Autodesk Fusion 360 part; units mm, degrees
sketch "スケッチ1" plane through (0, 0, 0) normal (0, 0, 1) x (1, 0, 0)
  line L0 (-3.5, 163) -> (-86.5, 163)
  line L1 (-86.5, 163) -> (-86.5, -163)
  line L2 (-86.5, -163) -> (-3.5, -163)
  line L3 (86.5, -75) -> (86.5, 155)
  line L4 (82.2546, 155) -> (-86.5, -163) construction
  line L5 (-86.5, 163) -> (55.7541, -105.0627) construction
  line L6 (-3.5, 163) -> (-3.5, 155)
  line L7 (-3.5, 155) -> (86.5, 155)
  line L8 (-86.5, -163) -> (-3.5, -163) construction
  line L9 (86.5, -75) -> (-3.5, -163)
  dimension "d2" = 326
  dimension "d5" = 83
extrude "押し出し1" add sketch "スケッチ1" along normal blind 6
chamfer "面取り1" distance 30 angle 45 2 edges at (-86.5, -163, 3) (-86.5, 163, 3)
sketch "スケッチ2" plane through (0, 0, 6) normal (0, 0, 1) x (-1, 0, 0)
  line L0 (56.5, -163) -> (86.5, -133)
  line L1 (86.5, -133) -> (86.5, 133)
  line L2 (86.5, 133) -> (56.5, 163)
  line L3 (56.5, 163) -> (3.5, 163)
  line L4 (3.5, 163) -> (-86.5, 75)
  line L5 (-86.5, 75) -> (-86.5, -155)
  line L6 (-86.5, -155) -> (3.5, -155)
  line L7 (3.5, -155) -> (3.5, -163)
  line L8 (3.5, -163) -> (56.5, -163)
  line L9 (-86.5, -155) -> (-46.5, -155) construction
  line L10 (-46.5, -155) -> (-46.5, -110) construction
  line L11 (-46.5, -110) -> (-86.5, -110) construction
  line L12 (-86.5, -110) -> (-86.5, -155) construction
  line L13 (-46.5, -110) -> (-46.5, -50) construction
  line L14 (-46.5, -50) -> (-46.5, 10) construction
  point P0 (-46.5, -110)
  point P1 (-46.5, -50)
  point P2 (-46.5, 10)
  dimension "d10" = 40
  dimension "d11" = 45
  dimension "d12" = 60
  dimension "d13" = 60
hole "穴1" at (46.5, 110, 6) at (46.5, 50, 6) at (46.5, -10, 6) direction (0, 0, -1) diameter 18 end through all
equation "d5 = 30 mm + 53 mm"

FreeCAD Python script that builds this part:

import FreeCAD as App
import Part
import Sketcher
from FreeCAD import Vector


def edges_at(feature, points):
    """Names of the edges that pass closest to the given points."""
    edges = feature.Shape.Edges
    near = lambda p: min(range(len(edges)), key=lambda i: edges[i].distToShape(Part.Vertex(*p))[0])
    return sorted({f"Edge{near(p) + 1}" for p in points})

doc = App.newDocument("Part")
params = doc.addObject("Spreadsheet::Sheet", "Params")
for row, (alias, value) in enumerate([
    ("sketch1_width", "83 mm"),
    ("sketch1_height", "326 mm"),
    ("sketch1_width2", "90 mm"),
    ("sketch1_height2", "8 mm"),
    ("sketch1_height3", "230 mm"),
    ("pad1_length", "6 mm"),
    ("chamfer_size", "30 mm"),
    ("sketch2_diameter", "18 mm"),
    ("hole_diameter", "18 mm"),
], start=1):
    params.set(f"A{row}", alias)
    params.set(f"B{row}", "=" + value)
    params.setAlias(f"B{row}", alias)

body = doc.addObject("PartDesign::Body", "Body")

# Sketch on XY plane
sketch1 = doc.addObject("Sketcher::SketchObject", "Sketch")
body.addObject(sketch1)
sketch1.AttachmentSupport = (doc.XY_Plane, [""])
sketch1.MapMode = "FlatFace"
sketch1.addGeometry(Part.LineSegment(Vector(-4, 155, 0), Vector(-4, 163, 0)), False)
sketch1.addGeometry(Part.LineSegment(Vector(-4, 163, 0), Vector(-86, 163, 0)), False)
sketch1.addGeometry(Part.LineSegment(Vector(-86, 163, 0), Vector(-86, -163, 0)), False)
sketch1.addGeometry(Part.LineSegment(Vector(-86, -163, 0), Vector(-4, -163, 0)), False)
sketch1.addGeometry(Part.LineSegment(Vector(-4, -163, 0), Vector(86, -75, 0)), False)
sketch1.addGeometry(Part.LineSegment(Vector(86, -75, 0), Vector(86, 155, 0)), False)
sketch1.addGeometry(Part.LineSegment(Vector(86, 155, 0), Vector(-4, 155, 0)), False)
sketch1.addConstraint(Sketcher.Constraint("Coincident", 0, 2, 1, 1))
sketch1.addConstraint(Sketcher.Constraint("Coincident", 1, 2, 2, 1))
sketch1.addConstraint(Sketcher.Constraint("Coincident", 2, 2, 3, 1))
sketch1.addConstraint(Sketcher.Constraint("Coincident", 3, 2, 4, 1))
sketch1.addConstraint(Sketcher.Constraint("Coincident", 4, 2, 5, 1))
sketch1.addConstraint(Sketcher.Constraint("Coincident", 5, 2, 6, 1))
sketch1.addConstraint(Sketcher.Constraint("Coincident", 6, 2, 0, 1))
sketch1.addConstraint(Sketcher.Constraint("Vertical", 0))
sketch1.addConstraint(Sketcher.Constraint("Horizontal", 1))
sketch1.addConstraint(Sketcher.Constraint("Vertical", 2))
sketch1.addConstraint(Sketcher.Constraint("Horizontal", 3))
sketch1.addConstraint(Sketcher.Constraint("Vertical", 5))
sketch1.addConstraint(Sketcher.Constraint("Horizontal", 6))
sketch1.addConstraint(Sketcher.Constraint("Symmetric", 0, 2, 3, 2, -1))
sketch1.addConstraint(Sketcher.Constraint("DistanceX", 1, 2, 1, 1, 83.0))
sketch1.addConstraint(Sketcher.Constraint("DistanceY", 2, 2, 2, 1, 326.0))
sketch1.addConstraint(Sketcher.Constraint("DistanceX", 6, 2, 6, 1, 90.0))
sketch1.addConstraint(Sketcher.Constraint("DistanceY", 0, 1, 0, 2, 8.0))
sketch1.addConstraint(Sketcher.Constraint("DistanceY", 5, 1, 5, 2, 230.0))
sketch1.addConstraint(Sketcher.Constraint("DistanceX", 0, 2, -1, 1, 3.5))
sketch1.setExpression("Constraints[14]", "Params.sketch1_width")
sketch1.setExpression("Constraints[15]", "Params.sketch1_height")
sketch1.setExpression("Constraints[16]", "Params.sketch1_width2")
sketch1.setExpression("Constraints[17]", "Params.sketch1_height2")
sketch1.setExpression("Constraints[18]", "Params.sketch1_height3")
pad1 = doc.addObject("PartDesign::Pad", "Pad")
body.addObject(pad1)
pad1.Profile = sketch1
pad1.setExpression("Length", "Params.pad1_length")
doc.recompute()

chamfer = doc.addObject("PartDesign::Chamfer", "Chamfer")
body.addObject(chamfer)
chamfer.Base = (pad1, edges_at(pad1, [(-86.5, -163, 3), (-86.5, 163, 3)]))
chamfer.setExpression("Size", "Params.chamfer_size")

# Sketch on XY plane
sketch2 = doc.addObject("Sketcher::SketchObject", "Sketch001")
body.addObject(sketch2)
sketch2.AttachmentSupport = (doc.XY_Plane, [""])
sketch2.MapMode = "FlatFace"
sketch2.AttachmentOffset = App.Placement(Vector(0, 0, 6), App.Rotation())
sketch2.addGeometry(Part.Circle(Vector(46, 110, 0), Vector(0, 0, 1), 9), False)
sketch2.addGeometry(Part.Circle(Vector(46, 50, 0), Vector(0, 0, 1), 9), False)
sketch2.addGeometry(Part.Circle(Vector(46, -10, 0), Vector(0, 0, 1), 9), False)
sketch2.addConstraint(Sketcher.Constraint("Equal", 0, 1))
sketch2.addConstraint(Sketcher.Constraint("Equal", 1, 2))
sketch2.addConstraint(Sketcher.Constraint("Vertical", 0, 3, 1, 3))
sketch2.addConstraint(Sketcher.Constraint("Vertical", 1, 3, 2, 3))
sketch2.addConstraint(Sketcher.Constraint("Diameter", 0, 18.0))
sketch2.addConstraint(Sketcher.Constraint("DistanceY", -1, 1, 0, 3, 110.0))
sketch2.addConstraint(Sketcher.Constraint("DistanceY", -1, 1, 1, 3, 50.0))
sketch2.addConstraint(Sketcher.Constraint("DistanceY", 2, 3, -1, 1, 10.0))
sketch2.addConstraint(Sketcher.Constraint("DistanceX", -1, 1, 0, 3, 46.5))
sketch2.setExpression("Constraints[4]", "Params.sketch2_diameter")
doc.recompute()
hole = doc.addObject("PartDesign::Hole", "Hole")
body.addObject(hole)
hole.Profile = sketch2
hole.ThreadType = "None"
hole.setExpression("Diameter", "Params.hole_diameter")
hole.DepthType = "ThroughAll"

doc.recompute()
